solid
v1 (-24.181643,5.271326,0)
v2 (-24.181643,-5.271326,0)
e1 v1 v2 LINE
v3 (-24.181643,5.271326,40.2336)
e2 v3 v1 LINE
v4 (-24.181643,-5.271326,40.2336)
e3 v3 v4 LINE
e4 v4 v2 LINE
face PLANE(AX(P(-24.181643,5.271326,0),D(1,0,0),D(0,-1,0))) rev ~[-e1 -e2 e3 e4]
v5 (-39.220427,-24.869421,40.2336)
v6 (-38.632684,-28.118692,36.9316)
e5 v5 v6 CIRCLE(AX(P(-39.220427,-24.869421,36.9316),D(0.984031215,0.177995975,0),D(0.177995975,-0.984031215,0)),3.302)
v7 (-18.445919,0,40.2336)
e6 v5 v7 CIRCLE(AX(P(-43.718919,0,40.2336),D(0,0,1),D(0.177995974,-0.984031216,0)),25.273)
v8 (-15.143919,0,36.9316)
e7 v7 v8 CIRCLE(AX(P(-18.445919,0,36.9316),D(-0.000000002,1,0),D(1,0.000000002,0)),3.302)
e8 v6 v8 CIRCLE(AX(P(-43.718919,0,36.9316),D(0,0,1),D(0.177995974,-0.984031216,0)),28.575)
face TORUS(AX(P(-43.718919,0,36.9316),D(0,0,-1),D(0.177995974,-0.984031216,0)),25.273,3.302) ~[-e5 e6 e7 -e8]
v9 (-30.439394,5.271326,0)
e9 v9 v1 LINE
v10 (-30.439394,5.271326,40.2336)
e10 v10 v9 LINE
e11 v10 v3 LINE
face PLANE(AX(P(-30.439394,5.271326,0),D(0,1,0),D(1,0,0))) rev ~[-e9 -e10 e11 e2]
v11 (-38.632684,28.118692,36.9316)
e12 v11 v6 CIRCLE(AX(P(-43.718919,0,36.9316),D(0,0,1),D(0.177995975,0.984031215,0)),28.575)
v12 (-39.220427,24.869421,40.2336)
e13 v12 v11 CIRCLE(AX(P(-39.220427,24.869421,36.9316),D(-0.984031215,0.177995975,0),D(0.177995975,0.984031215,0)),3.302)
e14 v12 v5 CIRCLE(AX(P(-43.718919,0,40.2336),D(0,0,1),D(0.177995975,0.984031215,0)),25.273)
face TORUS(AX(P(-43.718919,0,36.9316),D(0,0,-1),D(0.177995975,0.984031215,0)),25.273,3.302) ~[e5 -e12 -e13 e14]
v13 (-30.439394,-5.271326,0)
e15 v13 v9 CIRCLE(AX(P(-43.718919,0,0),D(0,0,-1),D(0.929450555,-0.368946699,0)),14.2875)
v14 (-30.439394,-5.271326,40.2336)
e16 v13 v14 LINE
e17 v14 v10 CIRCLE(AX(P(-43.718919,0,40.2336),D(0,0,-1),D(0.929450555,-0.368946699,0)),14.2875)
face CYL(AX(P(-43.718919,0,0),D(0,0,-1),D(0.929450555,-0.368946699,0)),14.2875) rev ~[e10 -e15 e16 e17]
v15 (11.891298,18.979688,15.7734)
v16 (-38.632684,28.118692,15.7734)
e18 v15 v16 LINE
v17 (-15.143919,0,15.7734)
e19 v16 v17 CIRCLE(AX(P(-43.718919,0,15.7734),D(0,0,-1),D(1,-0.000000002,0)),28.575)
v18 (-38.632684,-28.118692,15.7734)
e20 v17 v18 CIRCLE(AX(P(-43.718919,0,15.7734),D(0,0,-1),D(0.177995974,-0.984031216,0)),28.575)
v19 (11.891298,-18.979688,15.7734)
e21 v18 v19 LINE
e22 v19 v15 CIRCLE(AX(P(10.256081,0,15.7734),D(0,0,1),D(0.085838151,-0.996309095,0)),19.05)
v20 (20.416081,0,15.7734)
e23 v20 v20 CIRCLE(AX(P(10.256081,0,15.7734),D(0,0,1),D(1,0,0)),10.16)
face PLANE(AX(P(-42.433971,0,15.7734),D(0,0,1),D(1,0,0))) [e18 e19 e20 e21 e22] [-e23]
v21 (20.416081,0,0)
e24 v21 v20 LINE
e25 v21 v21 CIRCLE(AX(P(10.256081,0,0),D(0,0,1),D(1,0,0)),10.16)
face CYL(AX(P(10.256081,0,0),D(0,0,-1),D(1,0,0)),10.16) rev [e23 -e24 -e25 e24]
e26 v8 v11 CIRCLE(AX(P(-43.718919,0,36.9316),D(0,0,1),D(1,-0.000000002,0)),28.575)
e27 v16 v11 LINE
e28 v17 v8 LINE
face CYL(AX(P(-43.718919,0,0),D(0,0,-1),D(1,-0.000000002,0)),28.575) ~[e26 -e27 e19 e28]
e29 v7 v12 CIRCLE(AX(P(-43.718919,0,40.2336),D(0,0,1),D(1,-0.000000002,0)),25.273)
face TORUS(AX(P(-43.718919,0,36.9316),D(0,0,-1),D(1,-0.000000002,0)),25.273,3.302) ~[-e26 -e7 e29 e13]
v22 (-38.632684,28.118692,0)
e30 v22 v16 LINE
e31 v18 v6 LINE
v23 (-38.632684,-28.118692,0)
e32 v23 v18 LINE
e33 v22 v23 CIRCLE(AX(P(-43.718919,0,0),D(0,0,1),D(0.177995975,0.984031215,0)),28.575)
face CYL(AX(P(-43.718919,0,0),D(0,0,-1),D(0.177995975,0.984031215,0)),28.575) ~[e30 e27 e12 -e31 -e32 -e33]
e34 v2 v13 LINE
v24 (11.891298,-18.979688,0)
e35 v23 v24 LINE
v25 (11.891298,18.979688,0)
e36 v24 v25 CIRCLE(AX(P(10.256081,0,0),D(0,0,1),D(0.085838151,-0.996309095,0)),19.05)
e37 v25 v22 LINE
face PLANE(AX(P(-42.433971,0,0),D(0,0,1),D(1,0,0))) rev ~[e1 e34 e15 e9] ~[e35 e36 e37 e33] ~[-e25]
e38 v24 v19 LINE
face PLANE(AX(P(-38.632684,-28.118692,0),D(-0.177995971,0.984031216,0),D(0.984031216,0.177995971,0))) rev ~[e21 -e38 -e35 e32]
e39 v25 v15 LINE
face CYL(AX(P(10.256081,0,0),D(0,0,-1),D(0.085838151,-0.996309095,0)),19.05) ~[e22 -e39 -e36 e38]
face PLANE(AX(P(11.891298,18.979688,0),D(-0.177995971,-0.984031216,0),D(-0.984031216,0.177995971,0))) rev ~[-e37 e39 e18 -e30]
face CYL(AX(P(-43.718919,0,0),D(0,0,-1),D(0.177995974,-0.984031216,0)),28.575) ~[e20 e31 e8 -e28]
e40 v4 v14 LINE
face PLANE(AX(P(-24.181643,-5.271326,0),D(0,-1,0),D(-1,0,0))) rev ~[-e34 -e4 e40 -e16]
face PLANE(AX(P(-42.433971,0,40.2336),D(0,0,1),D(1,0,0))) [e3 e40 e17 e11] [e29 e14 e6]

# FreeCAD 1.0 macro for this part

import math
import FreeCAD as App
import Part
import Sketcher

V = App.Vector
Q = App.Units.Quantity


def edges_at(feature, points):
    """Names of the edges that pass closest to the given points."""
    edges = feature.Shape.Edges
    near = lambda p: min(range(len(edges)), key=lambda i: edges[i].distToShape(Part.Vertex(*p))[0])
    return sorted({f"Edge{near(p) + 1}" for p in points})

doc = App.newDocument("Part")
body = doc.addObject("PartDesign::Body", "Body")

# Sketch on XY plane
sketch1 = body.newObject("Sketcher::SketchObject", "Sketch")
sketch1.AttachmentSupport = (doc.getObject("XY_Plane"), [""])
sketch1.MapMode = "FlatFace"
sketch1.addGeometry([
    Part.ArcOfCircle(Part.Circle(V(-44, 0, 0), V(0, 0, 1), 29), math.radians(-80), math.radians(0)),  # 0
    Part.ArcOfCircle(Part.Circle(V(-44, 0, 0), V(0, 0, 1), 29), math.radians(0), math.radians(80)),  # 1
    Part.ArcOfCircle(Part.Circle(V(-44, 0, 0), V(0, 0, 1), 29), math.radians(80), math.radians(280)),  # 2
    Part.LineSegment(V(-24, -5, 0), V(-30, -5, 0)),  # 3
    Part.ArcOfCircle(Part.Circle(V(-44, 0, 0), V(0, 0, 1), 14), math.radians(22), math.radians(338)),  # 4
    Part.LineSegment(V(-30, 5, 0), V(-24, 5, 0)),  # 5
    Part.LineSegment(V(-24, 5, 0), V(-24, -5, 0)),  # 6
], False)
sketch1.addConstraint([
    Sketcher.Constraint("Tangent", 0, 2, 1, 1),
    Sketcher.Constraint("Tangent", 1, 2, 2, 1),
    Sketcher.Constraint("Tangent", 2, 2, 0, 1),
    Sketcher.Constraint("Coincident", 3, 2, 4, 2),
    Sketcher.Constraint("Coincident", 4, 1, 5, 1),
    Sketcher.Constraint("Coincident", 5, 2, 6, 1),
    Sketcher.Constraint("Coincident", 6, 2, 3, 1),
    Sketcher.Constraint("Horizontal", 3),
    Sketcher.Constraint("Horizontal", 5),
    Sketcher.Constraint("Vertical", 6),
    Sketcher.Constraint("Coincident", 4, 3, 0, 3),
    Sketcher.Constraint("Symmetric", 1, 2, 2, 2, -1),
    Sketcher.Constraint("PointOnObject", 0, 2, -1),
    Sketcher.Constraint("Vertical", 3, 2, 4, 1),
    Sketcher.Constraint("Radius", 0, Q("1.125 in")),
    Sketcher.Constraint("Radius", 4, Q("0.5625 in")),
    Sketcher.Constraint("DistanceX", 3, 2, 3, 1, Q("6.257751 mm")),
    Sketcher.Constraint("DistanceY", 6, 2, 6, 1, Q("10.542652 mm")),
    Sketcher.Constraint("DistanceX", 0, 3, -1, 1, Q("43.718919 mm")),
    Sketcher.Constraint("DistanceY", 1, 3, 1, 2, Q("28.118692 mm")),
])
pad1 = body.newObject("PartDesign::Pad", "Pad")
pad1.Profile = sketch1
pad1.Length = Q("1.584 in")

# Sketch on XY plane
sketch2 = body.newObject("Sketcher::SketchObject", "Sketch001")
sketch2.AttachmentSupport = (doc.getObject("XY_Plane"), [""])
sketch2.MapMode = "FlatFace"
sketch2.addGeometry([
    Part.ArcOfCircle(Part.Circle(V(-44, 0, 0), V(0, 0, 1), 29), math.radians(80), math.radians(280)),  # 0
    Part.LineSegment(V(-39, -28, 0), V(12, -19, 0)),  # 1
    Part.ArcOfCircle(Part.Circle(V(10, 0, 0), V(0, 0, 1), 19), math.radians(-85), math.radians(85)),  # 2
    Part.LineSegment(V(12, 19, 0), V(-39, 28, 0)),  # 3
    Part.LineSegment(V(-24, -5, 0), V(-30, -5, 0)),  # 4
    Part.ArcOfCircle(Part.Circle(V(-44, 0, 0), V(0, 0, 1), 14), math.radians(22), math.radians(338)),  # 5
    Part.LineSegment(V(-30, 5, 0), V(-24, 5, 0)),  # 6
    Part.LineSegment(V(-24, 5, 0), V(-24, -5, 0)),  # 7
    Part.Circle(V(10, 0, 0), V(0, 0, 1), 10),  # 8
], False)
sketch2.addConstraint([
    Sketcher.Constraint("Tangent", 0, 2, 1, 1),
    Sketcher.Constraint("Coincident", 1, 2, 2, 1),
    Sketcher.Constraint("Coincident", 2, 2, 3, 1),
    Sketcher.Constraint("Tangent", 3, 2, 0, 1),
    Sketcher.Constraint("Coincident", 4, 2, 5, 2),
    Sketcher.Constraint("Coincident", 5, 1, 6, 1),
    Sketcher.Constraint("Coincident", 6, 2, 7, 1),
    Sketcher.Constraint("Coincident", 7, 2, 4, 1),
    Sketcher.Constraint("Horizontal", 4),
    Sketcher.Constraint("Horizontal", 6),
    Sketcher.Constraint("Vertical", 7),
    Sketcher.Constraint("Coincident", 5, 3, 0, 3),
    Sketcher.Constraint("Coincident", 8, 3, 2, 3),
    Sketcher.Constraint("Symmetric", 1, 2, 2, 2, -1),
    Sketcher.Constraint("Symmetric", 4, 2, 5, 1, -1),
    Sketcher.Constraint("Diameter", 8, Q("0.8 in")),
    Sketcher.Constraint("Radius", 2, Q("0.75 in")),
    Sketcher.Constraint("Radius", 0, Q("1.125 in")),
    Sketcher.Constraint("Radius", 5, Q("0.5625 in")),
    Sketcher.Constraint("DistanceX", 0, 3, 2, 3, Q("2.125 in")),
    Sketcher.Constraint("DistanceX", 4, 2, 4, 1, Q("6.257751 mm")),
    Sketcher.Constraint("DistanceX", -1, 1, 1, 2, Q("11.891298 mm")),
    Sketcher.Constraint("Distance", 1, Q("51.343881 mm")),
    Sketcher.Constraint("DistanceY", 7, 2, 7, 1, Q("10.542652 mm")),
])
pad2 = body.newObject("PartDesign::Pad", "Pad001")
pad2.Profile = sketch2
pad2.Length = Q("0.621 in")
doc.recompute()

fillet = body.newObject("PartDesign::Fillet", "Fillet")
fillet.Base = (pad2, edges_at(pad2, [(-72.294, 0, 40.234)]))
fillet.Radius = Q("0.13 in")

doc.recompute()
